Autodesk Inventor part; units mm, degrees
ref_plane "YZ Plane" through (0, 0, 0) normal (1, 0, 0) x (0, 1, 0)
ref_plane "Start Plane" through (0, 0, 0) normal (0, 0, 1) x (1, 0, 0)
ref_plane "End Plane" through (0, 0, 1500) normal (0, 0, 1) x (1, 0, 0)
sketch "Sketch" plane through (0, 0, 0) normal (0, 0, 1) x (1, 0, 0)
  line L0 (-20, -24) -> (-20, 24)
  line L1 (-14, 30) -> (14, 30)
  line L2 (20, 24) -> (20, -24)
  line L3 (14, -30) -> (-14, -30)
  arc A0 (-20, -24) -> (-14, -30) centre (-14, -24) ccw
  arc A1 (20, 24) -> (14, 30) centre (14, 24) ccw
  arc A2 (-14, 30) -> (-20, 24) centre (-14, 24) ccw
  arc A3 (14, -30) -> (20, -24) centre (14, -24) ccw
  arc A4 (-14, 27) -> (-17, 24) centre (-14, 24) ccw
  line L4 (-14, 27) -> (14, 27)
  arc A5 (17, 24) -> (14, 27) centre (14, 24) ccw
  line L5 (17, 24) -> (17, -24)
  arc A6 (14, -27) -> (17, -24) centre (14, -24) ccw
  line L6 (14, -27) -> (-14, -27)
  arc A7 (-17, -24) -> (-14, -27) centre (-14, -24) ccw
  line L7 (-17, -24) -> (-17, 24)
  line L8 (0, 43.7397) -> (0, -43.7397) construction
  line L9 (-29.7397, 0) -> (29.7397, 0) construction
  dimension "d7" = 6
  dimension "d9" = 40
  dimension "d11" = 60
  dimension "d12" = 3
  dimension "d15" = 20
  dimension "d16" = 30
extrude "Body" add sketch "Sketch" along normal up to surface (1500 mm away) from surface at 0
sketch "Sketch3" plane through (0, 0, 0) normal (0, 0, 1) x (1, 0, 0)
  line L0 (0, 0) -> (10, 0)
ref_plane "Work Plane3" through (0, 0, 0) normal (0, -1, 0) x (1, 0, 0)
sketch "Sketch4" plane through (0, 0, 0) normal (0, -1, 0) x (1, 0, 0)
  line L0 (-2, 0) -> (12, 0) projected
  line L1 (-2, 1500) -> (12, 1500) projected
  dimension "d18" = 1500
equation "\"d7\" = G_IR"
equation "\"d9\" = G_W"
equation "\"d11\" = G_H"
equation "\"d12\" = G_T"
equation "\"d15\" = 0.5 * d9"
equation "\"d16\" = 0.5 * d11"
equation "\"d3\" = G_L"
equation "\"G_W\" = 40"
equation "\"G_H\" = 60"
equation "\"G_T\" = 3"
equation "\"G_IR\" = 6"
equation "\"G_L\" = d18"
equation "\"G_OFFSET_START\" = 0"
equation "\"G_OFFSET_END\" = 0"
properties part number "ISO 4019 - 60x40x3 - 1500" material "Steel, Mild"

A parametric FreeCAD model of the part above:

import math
import FreeCAD as App
import Part
import Sketcher

doc = App.newDocument("Part")
body = doc.addObject("PartDesign::Body", "Body")

sketch1 = body.newObject("Sketcher::SketchObject", "Sketch")
sketch1.AttachmentSupport = (doc.getObject("XY_Plane"), [""])
sketch1.MapMode = "FlatFace"
sketch1.addGeometry(Part.LineSegment(App.Vector(-20, 24, 0), App.Vector(-20, -24, 0)), False)
sketch1.addGeometry(Part.ArcOfCircle(Part.Circle(App.Vector(-14, -24, 0), App.Vector(0, 0, 1), 6), math.radians(180), math.radians(270)), False)
sketch1.addGeometry(Part.LineSegment(App.Vector(-14, -30, 0), App.Vector(14, -30, 0)), False)
sketch1.addGeometry(Part.ArcOfCircle(Part.Circle(App.Vector(14, -24, 0), App.Vector(0, 0, 1), 6), math.radians(-90), math.radians(0)), False)
sketch1.addGeometry(Part.LineSegment(App.Vector(20, -24, 0), App.Vector(20, 24, 0)), False)
sketch1.addGeometry(Part.ArcOfCircle(Part.Circle(App.Vector(14, 24, 0), App.Vector(0, 0, 1), 6), math.radians(0), math.radians(90)), False)
sketch1.addGeometry(Part.LineSegment(App.Vector(14, 30, 0), App.Vector(-14, 30, 0)), False)
sketch1.addGeometry(Part.ArcOfCircle(Part.Circle(App.Vector(-14, 24, 0), App.Vector(0, 0, 1), 6), math.radians(90), math.radians(180)), False)
sketch1.addGeometry(Part.ArcOfCircle(Part.Circle(App.Vector(-14, 24, 0), App.Vector(0, 0, 1), 3), math.radians(90), math.radians(180)), False)
sketch1.addGeometry(Part.LineSegment(App.Vector(-14, 27, 0), App.Vector(14, 27, 0)), False)
sketch1.addGeometry(Part.ArcOfCircle(Part.Circle(App.Vector(14, 24, 0), App.Vector(0, 0, 1), 3), math.radians(0), math.radians(90)), False)
sketch1.addGeometry(Part.LineSegment(App.Vector(17, 24, 0), App.Vector(17, -24, 0)), False)
sketch1.addGeometry(Part.ArcOfCircle(Part.Circle(App.Vector(14, -24, 0), App.Vector(0, 0, 1), 3), math.radians(-90), math.radians(0)), False)
sketch1.addGeometry(Part.LineSegment(App.Vector(14, -27, 0), App.Vector(-14, -27, 0)), False)
sketch1.addGeometry(Part.ArcOfCircle(Part.Circle(App.Vector(-14, -24, 0), App.Vector(0, 0, 1), 3), math.radians(180), math.radians(270)), False)
sketch1.addGeometry(Part.LineSegment(App.Vector(-17, -24, 0), App.Vector(-17, 24, 0)), False)
sketch1.addConstraint(Sketcher.Constraint("Tangent", 0, 2, 1, 1))
sketch1.addConstraint(Sketcher.Constraint("Tangent", 1, 2, 2, 1))
sketch1.addConstraint(Sketcher.Constraint("Tangent", 2, 2, 3, 1))
sketch1.addConstraint(Sketcher.Constraint("Tangent", 3, 2, 4, 1))
sketch1.addConstraint(Sketcher.Constraint("Tangent", 4, 2, 5, 1))
sketch1.addConstraint(Sketcher.Constraint("Tangent", 5, 2, 6, 1))
sketch1.addConstraint(Sketcher.Constraint("Tangent", 6, 2, 7, 1))
sketch1.addConstraint(Sketcher.Constraint("Tangent", 7, 2, 0, 1))
sketch1.addConstraint(Sketcher.Constraint("Tangent", 8, 1, 9, 1))
sketch1.addConstraint(Sketcher.Constraint("Tangent", 9, 2, 10, 2))
sketch1.addConstraint(Sketcher.Constraint("Tangent", 10, 1, 11, 1))
sketch1.addConstraint(Sketcher.Constraint("Tangent", 11, 2, 12, 2))
sketch1.addConstraint(Sketcher.Constraint("Tangent", 12, 1, 13, 1))
sketch1.addConstraint(Sketcher.Constraint("Tangent", 13, 2, 14, 2))
sketch1.addConstraint(Sketcher.Constraint("Tangent", 14, 1, 15, 1))
sketch1.addConstraint(Sketcher.Constraint("Tangent", 15, 2, 8, 2))
sketch1.addConstraint(Sketcher.Constraint("Vertical", 0))
sketch1.addConstraint(Sketcher.Constraint("Horizontal", 2))
sketch1.addConstraint(Sketcher.Constraint("Vertical", 4))
sketch1.addConstraint(Sketcher.Constraint("Horizontal", 6))
sketch1.addConstraint(Sketcher.Constraint("Horizontal", 9))
sketch1.addConstraint(Sketcher.Constraint("Vertical", 11))
sketch1.addConstraint(Sketcher.Constraint("Horizontal", 13))
sketch1.addConstraint(Sketcher.Constraint("Vertical", 15))
sketch1.addConstraint(Sketcher.Constraint("Coincident", 8, 3, 7, 3))
sketch1.addConstraint(Sketcher.Constraint("Coincident", 10, 3, 5, 3))
sketch1.addConstraint(Sketcher.Constraint("Coincident", 12, 3, 3, 3))
sketch1.addConstraint(Sketcher.Constraint("Equal", 1, 3))
sketch1.addConstraint(Sketcher.Constraint("Equal", 3, 5))
sketch1.addConstraint(Sketcher.Constraint("Equal", 5, 7))
sketch1.addConstraint(Sketcher.Constraint("Equal", 12, 14))
sketch1.addConstraint(Sketcher.Constraint("Symmetric", 1, 3, 5, 3, -1, 1))
sketch1.addConstraint(Sketcher.Constraint("Radius", 1, 6.0))
sketch1.addConstraint(Sketcher.Constraint("Radius", 8, 3.0))
sketch1.addConstraint(Sketcher.Constraint("DistanceX", 0, 2, -1, 1, 20.0))
sketch1.addConstraint(Sketcher.Constraint("DistanceY", 1, 2, -1, 1, 30.0))
pad1 = body.newObject("PartDesign::Pad", "Pad")
pad1.Profile = sketch1
pad1.Length = 1500

doc.recompute()
